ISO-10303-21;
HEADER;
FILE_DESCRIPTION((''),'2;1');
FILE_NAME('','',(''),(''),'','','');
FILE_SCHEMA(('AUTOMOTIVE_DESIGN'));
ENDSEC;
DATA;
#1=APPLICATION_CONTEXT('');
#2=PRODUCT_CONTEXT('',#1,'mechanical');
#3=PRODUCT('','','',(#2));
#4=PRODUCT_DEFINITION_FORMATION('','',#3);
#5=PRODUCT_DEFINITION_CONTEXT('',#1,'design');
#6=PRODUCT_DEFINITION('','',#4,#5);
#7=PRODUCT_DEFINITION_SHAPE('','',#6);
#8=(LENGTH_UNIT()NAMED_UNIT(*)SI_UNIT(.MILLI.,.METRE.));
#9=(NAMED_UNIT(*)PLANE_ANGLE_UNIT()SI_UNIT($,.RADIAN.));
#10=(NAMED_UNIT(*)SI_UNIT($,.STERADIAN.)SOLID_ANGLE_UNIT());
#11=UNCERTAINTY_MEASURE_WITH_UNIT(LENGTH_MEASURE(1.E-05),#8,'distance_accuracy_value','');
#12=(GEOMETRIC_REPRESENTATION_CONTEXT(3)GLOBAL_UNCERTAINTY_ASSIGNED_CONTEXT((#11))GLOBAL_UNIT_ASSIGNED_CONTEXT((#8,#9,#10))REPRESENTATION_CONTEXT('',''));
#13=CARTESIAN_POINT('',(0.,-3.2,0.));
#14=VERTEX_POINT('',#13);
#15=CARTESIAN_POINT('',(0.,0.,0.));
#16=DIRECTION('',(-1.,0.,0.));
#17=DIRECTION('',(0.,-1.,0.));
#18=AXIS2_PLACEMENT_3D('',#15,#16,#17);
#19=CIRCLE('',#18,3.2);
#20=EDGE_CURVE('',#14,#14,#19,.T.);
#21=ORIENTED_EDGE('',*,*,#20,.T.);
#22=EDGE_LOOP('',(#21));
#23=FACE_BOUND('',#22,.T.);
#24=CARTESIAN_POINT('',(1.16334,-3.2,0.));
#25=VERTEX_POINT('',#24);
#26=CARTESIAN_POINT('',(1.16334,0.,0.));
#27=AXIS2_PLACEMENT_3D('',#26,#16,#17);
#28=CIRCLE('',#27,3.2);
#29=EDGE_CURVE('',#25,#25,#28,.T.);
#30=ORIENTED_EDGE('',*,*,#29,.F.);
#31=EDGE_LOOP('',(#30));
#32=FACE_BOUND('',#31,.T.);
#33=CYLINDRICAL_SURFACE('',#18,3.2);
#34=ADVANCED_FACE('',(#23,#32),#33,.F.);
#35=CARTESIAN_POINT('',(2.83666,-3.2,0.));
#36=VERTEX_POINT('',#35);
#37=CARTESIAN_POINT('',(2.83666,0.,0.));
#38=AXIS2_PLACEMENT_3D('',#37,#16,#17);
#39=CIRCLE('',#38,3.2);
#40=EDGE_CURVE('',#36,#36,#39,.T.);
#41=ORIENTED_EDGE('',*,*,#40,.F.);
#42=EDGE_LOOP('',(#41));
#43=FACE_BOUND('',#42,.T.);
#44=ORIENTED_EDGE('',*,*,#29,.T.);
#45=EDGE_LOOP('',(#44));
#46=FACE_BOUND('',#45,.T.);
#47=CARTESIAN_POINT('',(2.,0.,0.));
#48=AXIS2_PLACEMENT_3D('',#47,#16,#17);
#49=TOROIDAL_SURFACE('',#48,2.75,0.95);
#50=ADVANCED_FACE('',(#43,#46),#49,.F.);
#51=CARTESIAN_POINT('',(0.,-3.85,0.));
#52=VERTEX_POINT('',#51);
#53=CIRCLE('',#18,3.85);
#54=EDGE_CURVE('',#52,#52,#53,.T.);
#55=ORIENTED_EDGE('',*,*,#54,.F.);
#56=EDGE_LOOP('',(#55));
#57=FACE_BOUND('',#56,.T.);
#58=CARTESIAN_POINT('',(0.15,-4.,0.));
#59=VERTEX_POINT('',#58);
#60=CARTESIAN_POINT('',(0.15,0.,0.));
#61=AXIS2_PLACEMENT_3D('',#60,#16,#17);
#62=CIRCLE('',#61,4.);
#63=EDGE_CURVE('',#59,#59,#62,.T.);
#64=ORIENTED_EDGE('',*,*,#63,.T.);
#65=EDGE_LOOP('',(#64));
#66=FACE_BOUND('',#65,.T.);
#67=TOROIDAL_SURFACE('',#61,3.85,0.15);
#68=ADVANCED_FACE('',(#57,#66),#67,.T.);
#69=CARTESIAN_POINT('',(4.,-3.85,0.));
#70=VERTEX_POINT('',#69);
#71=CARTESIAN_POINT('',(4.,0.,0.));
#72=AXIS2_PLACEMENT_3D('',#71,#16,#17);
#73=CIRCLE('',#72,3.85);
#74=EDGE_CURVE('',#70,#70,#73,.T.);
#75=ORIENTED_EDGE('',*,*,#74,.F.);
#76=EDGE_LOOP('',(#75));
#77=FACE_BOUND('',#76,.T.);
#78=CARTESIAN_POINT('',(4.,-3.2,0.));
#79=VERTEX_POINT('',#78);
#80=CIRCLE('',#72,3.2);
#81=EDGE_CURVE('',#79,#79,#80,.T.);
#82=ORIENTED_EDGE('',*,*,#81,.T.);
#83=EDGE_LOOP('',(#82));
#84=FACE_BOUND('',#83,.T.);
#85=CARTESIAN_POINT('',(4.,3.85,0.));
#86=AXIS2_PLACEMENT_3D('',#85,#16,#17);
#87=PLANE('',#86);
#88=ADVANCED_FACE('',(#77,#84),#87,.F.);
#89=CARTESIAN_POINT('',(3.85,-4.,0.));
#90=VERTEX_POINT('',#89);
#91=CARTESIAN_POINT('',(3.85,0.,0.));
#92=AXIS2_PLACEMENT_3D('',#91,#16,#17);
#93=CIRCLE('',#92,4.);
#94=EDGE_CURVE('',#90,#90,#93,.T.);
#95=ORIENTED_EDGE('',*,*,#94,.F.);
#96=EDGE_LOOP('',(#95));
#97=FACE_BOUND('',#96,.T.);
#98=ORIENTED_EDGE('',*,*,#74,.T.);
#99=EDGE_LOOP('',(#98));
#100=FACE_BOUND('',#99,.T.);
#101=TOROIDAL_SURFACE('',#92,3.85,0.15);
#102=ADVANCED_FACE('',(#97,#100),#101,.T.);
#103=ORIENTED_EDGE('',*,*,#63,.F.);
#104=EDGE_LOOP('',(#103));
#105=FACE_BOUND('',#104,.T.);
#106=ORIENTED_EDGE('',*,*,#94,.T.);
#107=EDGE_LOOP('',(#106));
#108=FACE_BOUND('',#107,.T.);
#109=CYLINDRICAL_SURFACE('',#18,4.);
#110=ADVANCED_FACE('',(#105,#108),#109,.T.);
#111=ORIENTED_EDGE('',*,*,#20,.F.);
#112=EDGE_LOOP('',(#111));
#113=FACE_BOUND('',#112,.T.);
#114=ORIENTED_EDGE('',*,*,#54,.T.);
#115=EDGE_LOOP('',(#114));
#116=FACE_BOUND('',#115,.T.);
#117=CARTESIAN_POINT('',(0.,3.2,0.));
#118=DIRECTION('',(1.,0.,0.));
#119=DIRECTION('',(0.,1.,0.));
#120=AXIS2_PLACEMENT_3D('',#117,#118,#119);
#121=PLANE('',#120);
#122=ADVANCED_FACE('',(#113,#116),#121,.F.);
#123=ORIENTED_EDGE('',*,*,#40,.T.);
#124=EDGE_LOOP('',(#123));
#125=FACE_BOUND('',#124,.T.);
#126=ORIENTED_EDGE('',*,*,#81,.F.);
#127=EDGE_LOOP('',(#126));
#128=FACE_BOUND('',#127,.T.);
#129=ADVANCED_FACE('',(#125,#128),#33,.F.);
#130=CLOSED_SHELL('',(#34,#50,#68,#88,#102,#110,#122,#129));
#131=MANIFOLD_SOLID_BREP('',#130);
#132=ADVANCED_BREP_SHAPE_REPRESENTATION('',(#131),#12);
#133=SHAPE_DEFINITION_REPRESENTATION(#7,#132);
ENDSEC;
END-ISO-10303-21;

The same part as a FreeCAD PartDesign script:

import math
import FreeCAD as App
import Part
import Sketcher
from FreeCAD import Vector

doc = App.newDocument("Part")
body = doc.addObject("PartDesign::Body", "Body")

# Sketch on XY plane
sketch1 = doc.addObject("Sketcher::SketchObject", "Sketch")
body.addObject(sketch1)
sketch1.AttachmentSupport = (doc.XY_Plane, [""])
sketch1.MapMode = "FlatFace"
sketch1.addGeometry([
    Part.LineSegment(Vector(3.85, 4, 0), Vector(0.15, 4, 0)),  # 0
    Part.ArcOfCircle(Part.Circle(Vector(0.15, 3.85, 0), Vector(0, 0, 1), 0.15), math.radians(90), math.radians(180)),  # 1
    Part.LineSegment(Vector(0, 3.85, 0), Vector(0, 3.2, 0)),  # 2
    Part.LineSegment(Vector(0, 3.2, 0), Vector(1.16, 3.2, 0)),  # 3
    Part.ArcOfCircle(Part.Circle(Vector(2, 2.75, 0), Vector(0, 0, 1), 0.95), math.radians(28), math.radians(152)),  # 4
    Part.LineSegment(Vector(2.84, 3.2, 0), Vector(4, 3.2, 0)),  # 5
    Part.LineSegment(Vector(4, 3.2, 0), Vector(4, 3.85, 0)),  # 6
    Part.ArcOfCircle(Part.Circle(Vector(3.85, 3.85, 0), Vector(0, 0, 1), 0.15), math.radians(0), math.radians(90)),  # 7
], False)
sketch1.addConstraint([
    Sketcher.Constraint("Tangent", 0, 2, 1, 1),
    Sketcher.Constraint("Tangent", 1, 2, 2, 1),
    Sketcher.Constraint("Coincident", 2, 2, 3, 1),
    Sketcher.Constraint("Coincident", 3, 2, 4, 2),
    Sketcher.Constraint("Coincident", 4, 1, 5, 1),
    Sketcher.Constraint("Coincident", 5, 2, 6, 1),
    Sketcher.Constraint("Tangent", 6, 2, 7, 1),
    Sketcher.Constraint("Tangent", 7, 2, 0, 1),
    Sketcher.Constraint("Horizontal", 0),
    Sketcher.Constraint("Vertical", 2),
    Sketcher.Constraint("Horizontal", 3),
    Sketcher.Constraint("Horizontal", 5),
    Sketcher.Constraint("Vertical", 6),
    Sketcher.Constraint("Equal", 1, 7),
    Sketcher.Constraint("PointOnObject", 1, 2, -2),
    Sketcher.Constraint("Horizontal", 3, 2, 4, 1),
    Sketcher.Constraint("Equal", 3, 5),
    Sketcher.Constraint("Radius", 1, 0.15),
    Sketcher.Constraint("Radius", 4, 0.95),
    Sketcher.Constraint("DistanceX", 0, 2, 0, 1, 3.7),
    Sketcher.Constraint("DistanceY", -1, 1, 0, 2, 4.0),
    Sketcher.Constraint("DistanceY", 2, 2, 2, 1, 0.65),
    Sketcher.Constraint("DistanceY", 4, 3, 1, 3, 1.1),
])
revolution = doc.addObject("PartDesign::Revolution", "Revolution")
body.addObject(revolution)
revolution.Profile = sketch1
revolution.ReferenceAxis = (sketch1, ["H_Axis"])
revolution.Angle = 360

doc.recompute()
